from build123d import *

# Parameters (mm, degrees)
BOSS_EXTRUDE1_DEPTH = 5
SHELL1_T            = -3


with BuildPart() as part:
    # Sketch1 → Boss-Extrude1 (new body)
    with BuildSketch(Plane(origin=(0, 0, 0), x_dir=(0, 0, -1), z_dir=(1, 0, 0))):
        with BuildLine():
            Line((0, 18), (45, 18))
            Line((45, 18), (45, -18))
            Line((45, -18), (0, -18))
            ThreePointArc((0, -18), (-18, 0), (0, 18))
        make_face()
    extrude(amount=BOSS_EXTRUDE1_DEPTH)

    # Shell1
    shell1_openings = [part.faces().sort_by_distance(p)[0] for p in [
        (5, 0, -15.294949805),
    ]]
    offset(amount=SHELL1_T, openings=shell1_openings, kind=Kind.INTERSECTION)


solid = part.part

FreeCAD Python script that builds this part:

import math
import FreeCAD as App
import Part
import Sketcher

V = App.Vector


def faces_at(feature, points):
    """Names of the faces that lie closest to the given points."""
    faces = feature.Shape.Faces
    near = lambda p: min(range(len(faces)), key=lambda i: faces[i].distToShape(Part.Vertex(*p))[0])
    return sorted({f"Face{near(p) + 1}" for p in points})

doc = App.newDocument("Part")
body = doc.addObject("PartDesign::Body", "Body")

sketch1 = doc.addObject("Sketcher::SketchObject", "Sketch")
body.addObject(sketch1)
sketch1.AttachmentSupport = (doc.YZ_Plane, [""])
sketch1.MapMode = "FlatFace"
sketch1.addGeometry(Part.LineSegment(V(18, -45, 0), V(18, 0, 0)), False)
sketch1.addGeometry(Part.ArcOfCircle(Part.Circle(V(0, 0, 0), V(0, 0, 1), 18), math.radians(0), math.radians(180)), False)
sketch1.addGeometry(Part.LineSegment(V(-18, 0, 0), V(-18, -45, 0)), False)
sketch1.addGeometry(Part.LineSegment(V(-18, -45, 0), V(18, -45, 0)), False)
sketch1.addConstraint(Sketcher.Constraint("Tangent", 0, 2, 1, 1))
sketch1.addConstraint(Sketcher.Constraint("Tangent", 1, 2, 2, 1))
sketch1.addConstraint(Sketcher.Constraint("Coincident", 2, 2, 3, 1))
sketch1.addConstraint(Sketcher.Constraint("Coincident", 3, 2, 0, 1))
sketch1.addConstraint(Sketcher.Constraint("Vertical", 0))
sketch1.addConstraint(Sketcher.Constraint("Vertical", 2))
sketch1.addConstraint(Sketcher.Constraint("Horizontal", 3))
sketch1.addConstraint(Sketcher.Constraint("Coincident", 1, 3, -1, 1))
sketch1.addConstraint(Sketcher.Constraint("Radius", 1, 18.0))
sketch1.addConstraint(Sketcher.Constraint("DistanceY", 0, 1, 0, 2, 45.0))
pad1 = doc.addObject("PartDesign::Pad", "Pad")
body.addObject(pad1)
pad1.Profile = sketch1
pad1.Length = 5
doc.recompute()

thickness = doc.addObject("PartDesign::Thickness", "Thickness")
body.addObject(thickness)
thickness.Base = (pad1, faces_at(pad1, [(5, 0, -13.5)]))
thickness.Value = 3
thickness.Reversed = True
thickness.Join = "Intersection"

doc.recompute()
